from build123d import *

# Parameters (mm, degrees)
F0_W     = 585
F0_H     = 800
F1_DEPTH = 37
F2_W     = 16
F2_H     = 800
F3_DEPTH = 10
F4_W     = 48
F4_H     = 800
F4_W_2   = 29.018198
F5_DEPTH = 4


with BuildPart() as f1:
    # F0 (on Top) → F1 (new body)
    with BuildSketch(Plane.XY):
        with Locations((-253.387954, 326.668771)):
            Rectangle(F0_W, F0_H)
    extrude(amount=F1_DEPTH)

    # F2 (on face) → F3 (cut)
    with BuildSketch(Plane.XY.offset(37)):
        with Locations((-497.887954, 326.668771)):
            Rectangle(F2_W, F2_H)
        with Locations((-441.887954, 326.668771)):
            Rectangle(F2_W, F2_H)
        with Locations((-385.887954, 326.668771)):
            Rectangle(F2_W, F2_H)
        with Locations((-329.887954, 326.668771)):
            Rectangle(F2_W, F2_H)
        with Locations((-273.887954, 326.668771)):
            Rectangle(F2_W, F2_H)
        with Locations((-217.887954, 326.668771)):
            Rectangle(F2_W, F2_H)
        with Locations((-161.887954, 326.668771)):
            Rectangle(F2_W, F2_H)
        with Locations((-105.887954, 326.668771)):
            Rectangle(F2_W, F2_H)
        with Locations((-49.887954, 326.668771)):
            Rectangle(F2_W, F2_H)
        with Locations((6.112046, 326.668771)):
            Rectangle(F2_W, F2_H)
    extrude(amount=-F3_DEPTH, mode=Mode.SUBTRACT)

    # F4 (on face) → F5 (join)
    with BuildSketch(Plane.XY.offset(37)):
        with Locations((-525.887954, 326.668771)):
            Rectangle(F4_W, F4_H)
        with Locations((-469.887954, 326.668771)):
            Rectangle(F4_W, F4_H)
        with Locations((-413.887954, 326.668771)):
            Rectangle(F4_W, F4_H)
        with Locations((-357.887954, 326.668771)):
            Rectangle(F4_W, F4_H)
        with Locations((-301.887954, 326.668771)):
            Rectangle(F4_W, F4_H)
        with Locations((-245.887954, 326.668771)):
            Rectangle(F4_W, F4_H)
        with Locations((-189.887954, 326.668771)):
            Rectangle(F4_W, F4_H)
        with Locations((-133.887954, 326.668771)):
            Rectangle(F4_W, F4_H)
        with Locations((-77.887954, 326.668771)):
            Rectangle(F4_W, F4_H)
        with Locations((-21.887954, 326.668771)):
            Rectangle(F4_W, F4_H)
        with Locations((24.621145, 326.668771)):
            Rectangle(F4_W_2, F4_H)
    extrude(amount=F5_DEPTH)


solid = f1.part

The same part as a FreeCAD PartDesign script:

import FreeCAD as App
import Part
import Sketcher

doc = App.newDocument("Part")
body = doc.addObject("PartDesign::Body", "Body")

# Sketch on XY plane
sketch1 = body.newObject("Sketcher::SketchObject", "Sketch")
sketch1.AttachmentSupport = (doc.getObject("XY_Plane"), [""])
sketch1.MapMode = "FlatFace"
sketch1.addGeometry([
    Part.LineSegment(App.Vector(-546, 727, 0), App.Vector(-546, -73, 0)),
    Part.LineSegment(App.Vector(-546, -73, 0), App.Vector(39, -73, 0)),
    Part.LineSegment(App.Vector(39, -73, 0), App.Vector(39, 727, 0)),
    Part.LineSegment(App.Vector(39, 727, 0), App.Vector(-546, 727, 0)),
], False)
sketch1.addConstraint([
    Sketcher.Constraint("Coincident", 0, 2, 1, 1),
    Sketcher.Constraint("Coincident", 1, 2, 2, 1),
    Sketcher.Constraint("Coincident", 2, 2, 3, 1),
    Sketcher.Constraint("Coincident", 3, 2, 0, 1),
    Sketcher.Constraint("Vertical", 0),
    Sketcher.Constraint("Horizontal", 1),
    Sketcher.Constraint("Vertical", 2),
    Sketcher.Constraint("Horizontal", 3),
    Sketcher.Constraint("DistanceX", 1, 1, 1, 2, 585.0),
    Sketcher.Constraint("DistanceY", 0, 2, 0, 1, 800.0),
    Sketcher.Constraint("DistanceY", 0, 2, -1, 1, 73.331229),
    Sketcher.Constraint("DistanceX", 0, 2, -1, 1, 545.887954),
])
pad1 = body.newObject("PartDesign::Pad", "Pad")
pad1.Profile = sketch1
pad1.Length = 37

# Sketch on XY plane
sketch2 = body.newObject("Sketcher::SketchObject", "Sketch001")
sketch2.AttachmentSupport = (doc.getObject("XY_Plane"), [""])
sketch2.MapMode = "FlatFace"
sketch2.AttachmentOffset = App.Placement(App.Vector(0, 0, 37), App.Rotation())
sketch2.addGeometry([
    Part.LineSegment(App.Vector(-506, 727, 0), App.Vector(-506, -73, 0)),  # 0
    Part.LineSegment(App.Vector(-506, -73, 0), App.Vector(-490, -73, 0)),  # 1
    Part.LineSegment(App.Vector(-490, -73, 0), App.Vector(-490, 727, 0)),  # 2
    Part.LineSegment(App.Vector(-490, 727, 0), App.Vector(-506, 727, 0)),  # 3
    Part.LineSegment(App.Vector(-450, 727, 0), App.Vector(-450, -73, 0)),  # 4
    Part.LineSegment(App.Vector(-450, -73, 0), App.Vector(-434, -73, 0)),  # 5
    Part.LineSegment(App.Vector(-434, -73, 0), App.Vector(-434, 727, 0)),  # 6
    Part.LineSegment(App.Vector(-434, 727, 0), App.Vector(-450, 727, 0)),  # 7
    Part.LineSegment(App.Vector(-394, 727, 0), App.Vector(-394, -73, 0)),  # 8
    Part.LineSegment(App.Vector(-394, -73, 0), App.Vector(-378, -73, 0)),  # 9
    Part.LineSegment(App.Vector(-378, -73, 0), App.Vector(-378, 727, 0)),  # 10
    Part.LineSegment(App.Vector(-378, 727, 0), App.Vector(-394, 727, 0)),  # 11
    Part.LineSegment(App.Vector(-338, 727, 0), App.Vector(-338, -73, 0)),  # 12
    Part.LineSegment(App.Vector(-338, -73, 0), App.Vector(-322, -73, 0)),  # 13
    Part.LineSegment(App.Vector(-322, -73, 0), App.Vector(-322, 727, 0)),  # 14
    Part.LineSegment(App.Vector(-322, 727, 0), App.Vector(-338, 727, 0)),  # 15
    Part.LineSegment(App.Vector(-282, 727, 0), App.Vector(-282, -73, 0)),  # 16
    Part.LineSegment(App.Vector(-282, -73, 0), App.Vector(-266, -73, 0)),  # 17
    Part.LineSegment(App.Vector(-266, -73, 0), App.Vector(-266, 727, 0)),  # 18
    Part.LineSegment(App.Vector(-266, 727, 0), App.Vector(-282, 727, 0)),  # 19
    Part.LineSegment(App.Vector(-226, 727, 0), App.Vector(-226, -73, 0)),  # 20
    Part.LineSegment(App.Vector(-226, -73, 0), App.Vector(-210, -73, 0)),  # 21
    Part.LineSegment(App.Vector(-210, -73, 0), App.Vector(-210, 727, 0)),  # 22
    Part.LineSegment(App.Vector(-210, 727, 0), App.Vector(-226, 727, 0)),  # 23
    Part.LineSegment(App.Vector(-170, 727, 0), App.Vector(-170, -73, 0)),  # 24
    Part.LineSegment(App.Vector(-170, -73, 0), App.Vector(-154, -73, 0)),  # 25
    Part.LineSegment(App.Vector(-154, -73, 0), App.Vector(-154, 727, 0)),  # 26
    Part.LineSegment(App.Vector(-154, 727, 0), App.Vector(-170, 727, 0)),  # 27
    Part.LineSegment(App.Vector(-114, 727, 0), App.Vector(-114, -73, 0)),  # 28
    Part.LineSegment(App.Vector(-114, -73, 0), App.Vector(-98, -73, 0)),  # 29
    Part.LineSegment(App.Vector(-98, -73, 0), App.Vector(-98, 727, 0)),  # 30
    Part.LineSegment(App.Vector(-98, 727, 0), App.Vector(-114, 727, 0)),  # 31
    Part.LineSegment(App.Vector(-58, 727, 0), App.Vector(-58, -73, 0)),  # 32
    Part.LineSegment(App.Vector(-58, -73, 0), App.Vector(-42, -73, 0)),  # 33
    Part.LineSegment(App.Vector(-42, -73, 0), App.Vector(-42, 727, 0)),  # 34
    Part.LineSegment(App.Vector(-42, 727, 0), App.Vector(-58, 727, 0)),  # 35
    Part.LineSegment(App.Vector(-2, 727, 0), App.Vector(-2, -73, 0)),  # 36
    Part.LineSegment(App.Vector(-2, -73, 0), App.Vector(14, -73, 0)),  # 37
    Part.LineSegment(App.Vector(14, -73, 0), App.Vector(14, 727, 0)),  # 38
    Part.LineSegment(App.Vector(14, 727, 0), App.Vector(-2, 727, 0)),  # 39
], False)
sketch2.addConstraint([
    Sketcher.Constraint("Coincident", 0, 2, 1, 1),
    Sketcher.Constraint("Coincident", 1, 2, 2, 1),
    Sketcher.Constraint("Coincident", 2, 2, 3, 1),
    Sketcher.Constraint("Coincident", 3, 2, 0, 1),
    Sketcher.Constraint("Coincident", 4, 2, 5, 1),
    Sketcher.Constraint("Coincident", 5, 2, 6, 1),
    Sketcher.Constraint("Coincident", 6, 2, 7, 1),
    Sketcher.Constraint("Coincident", 7, 2, 4, 1),
    Sketcher.Constraint("Coincident", 8, 2, 9, 1),
    Sketcher.Constraint("Coincident", 9, 2, 10, 1),
    Sketcher.Constraint("Coincident", 10, 2, 11, 1),
    Sketcher.Constraint("Coincident", 11, 2, 8, 1),
    Sketcher.Constraint("Coincident", 12, 2, 13, 1),
    Sketcher.Constraint("Coincident", 13, 2, 14, 1),
    Sketcher.Constraint("Coincident", 14, 2, 15, 1),
    Sketcher.Constraint("Coincident", 15, 2, 12, 1),
    Sketcher.Constraint("Coincident", 16, 2, 17, 1),
    Sketcher.Constraint("Coincident", 17, 2, 18, 1),
    Sketcher.Constraint("Coincident", 18, 2, 19, 1),
    Sketcher.Constraint("Coincident", 19, 2, 16, 1),
    Sketcher.Constraint("Coincident", 20, 2, 21, 1),
    Sketcher.Constraint("Coincident", 21, 2, 22, 1),
    Sketcher.Constraint("Coincident", 22, 2, 23, 1),
    Sketcher.Constraint("Coincident", 23, 2, 20, 1),
    Sketcher.Constraint("Coincident", 24, 2, 25, 1),
    Sketcher.Constraint("Coincident", 25, 2, 26, 1),
    Sketcher.Constraint("Coincident", 26, 2, 27, 1),
    Sketcher.Constraint("Coincident", 27, 2, 24, 1),
    Sketcher.Constraint("Coincident", 28, 2, 29, 1),
    Sketcher.Constraint("Coincident", 29, 2, 30, 1),
    Sketcher.Constraint("Coincident", 30, 2, 31, 1),
    Sketcher.Constraint("Coincident", 31, 2, 28, 1),
    Sketcher.Constraint("Coincident", 32, 2, 33, 1),
    Sketcher.Constraint("Coincident", 33, 2, 34, 1),
    Sketcher.Constraint("Coincident", 34, 2, 35, 1),
    Sketcher.Constraint("Coincident", 35, 2, 32, 1),
    Sketcher.Constraint("Coincident", 36, 2, 37, 1),
    Sketcher.Constraint("Coincident", 37, 2, 38, 1),
    Sketcher.Constraint("Coincident", 38, 2, 39, 1),
    Sketcher.Constraint("Coincident", 39, 2, 36, 1),
    Sketcher.Constraint("Vertical", 0),
    Sketcher.Constraint("Horizontal", 1),
    Sketcher.Constraint("Vertical", 2),
    Sketcher.Constraint("Horizontal", 3),
    Sketcher.Constraint("Vertical", 4),
    Sketcher.Constraint("Horizontal", 5),
    Sketcher.Constraint("Vertical", 6),
    Sketcher.Constraint("Horizontal", 7),
    Sketcher.Constraint("Vertical", 8),
    Sketcher.Constraint("Horizontal", 9),
    Sketcher.Constraint("Vertical", 10),
    Sketcher.Constraint("Horizontal", 11),
    Sketcher.Constraint("Vertical", 12),
    Sketcher.Constraint("Horizontal", 13),
    Sketcher.Constraint("Vertical", 14),
    Sketcher.Constraint("Horizontal", 15),
    Sketcher.Constraint("Vertical", 16),
    Sketcher.Constraint("Horizontal", 17),
    Sketcher.Constraint("Vertical", 18),
    Sketcher.Constraint("Horizontal", 19),
    Sketcher.Constraint("Vertical", 20),
    Sketcher.Constraint("Horizontal", 21),
    Sketcher.Constraint("Vertical", 22),
    Sketcher.Constraint("Horizontal", 23),
    Sketcher.Constraint("Vertical", 24),
    Sketcher.Constraint("Horizontal", 25),
    Sketcher.Constraint("Vertical", 26),
    Sketcher.Constraint("Horizontal", 27),
    Sketcher.Constraint("Vertical", 28),
    Sketcher.Constraint("Horizontal", 29),
    Sketcher.Constraint("Vertical", 30),
    Sketcher.Constraint("Horizontal", 31),
    Sketcher.Constraint("Vertical", 32),
    Sketcher.Constraint("Horizontal", 33),
    Sketcher.Constraint("Vertical", 34),
    Sketcher.Constraint("Horizontal", 35),
    Sketcher.Constraint("Vertical", 36),
    Sketcher.Constraint("Horizontal", 37),
    Sketcher.Constraint("Vertical", 38),
    Sketcher.Constraint("Horizontal", 39),
    Sketcher.Constraint("Horizontal", 1, 2, 4, 2),
    Sketcher.Constraint("Horizontal", 3, 2, 6, 2),
    Sketcher.Constraint("Horizontal", 5, 2, 8, 2),
    Sketcher.Constraint("Horizontal", 7, 2, 10, 2),
    Sketcher.Constraint("Horizontal", 9, 2, 12, 2),
    Sketcher.Constraint("Horizontal", 11, 2, 14, 2),
    Sketcher.Constraint("Horizontal", 13, 2, 16, 2),
    Sketcher.Constraint("Horizontal", 15, 2, 18, 2),
    Sketcher.Constraint("Horizontal", 17, 2, 20, 2),
    Sketcher.Constraint("Horizontal", 19, 2, 22, 2),
    Sketcher.Constraint("Horizontal", 21, 2, 24, 2),
    Sketcher.Constraint("Horizontal", 23, 2, 26, 2),
    Sketcher.Constraint("Horizontal", 25, 2, 28, 2),
    Sketcher.Constraint("Horizontal", 27, 2, 30, 2),
    Sketcher.Constraint("Horizontal", 29, 2, 32, 2),
    Sketcher.Constraint("Horizontal", 31, 2, 34, 2),
    Sketcher.Constraint("Horizontal", 33, 2, 36, 2),
    Sketcher.Constraint("Horizontal", 35, 2, 38, 2),
    Sketcher.Constraint("Equal", 3, 5),
    Sketcher.Constraint("Equal", 7, 9),
    Sketcher.Constraint("Equal", 11, 13),
    Sketcher.Constraint("Equal", 15, 17),
    Sketcher.Constraint("Equal", 19, 21),
    Sketcher.Constraint("Equal", 23, 25),
    Sketcher.Constraint("Equal", 27, 29),
    Sketcher.Constraint("Equal", 31, 33),
    Sketcher.Constraint("Equal", 35, 37),
    Sketcher.Constraint("DistanceX", 1, 1, 1, 2, 16.0),
    Sketcher.Constraint("DistanceY", 0, 2, 0, 1, 800.0),
    Sketcher.Constraint("DistanceX", 1, 2, 4, 2, 40.0),
    Sketcher.Constraint("DistanceX", 5, 2, 8, 2, 40.0),
    Sketcher.Constraint("DistanceX", 9, 2, 12, 2, 40.0),
    Sketcher.Constraint("DistanceX", 13, 2, 16, 2, 40.0),
    Sketcher.Constraint("DistanceX", 17, 2, 20, 2, 40.0),
    Sketcher.Constraint("DistanceX", 21, 2, 24, 2, 40.0),
    Sketcher.Constraint("DistanceX", 25, 2, 28, 2, 40.0),
    Sketcher.Constraint("DistanceX", 29, 2, 32, 2, 40.0),
    Sketcher.Constraint("DistanceX", 33, 2, 36, 2, 40.0),
    Sketcher.Constraint("DistanceY", 0, 2, -1, 1, 73.331229),
    Sketcher.Constraint("DistanceX", 0, 2, -1, 1, 505.887954),
])
pocket1 = body.newObject("PartDesign::Pocket", "Pocket")
pocket1.Profile = sketch2
pocket1.Length = 10

# Sketch on XY plane
sketch3 = body.newObject("Sketcher::SketchObject", "Sketch002")
sketch3.AttachmentSupport = (doc.getObject("XY_Plane"), [""])
sketch3.MapMode = "FlatFace"
sketch3.AttachmentOffset = App.Placement(App.Vector(0, 0, 37), App.Rotation())
sketch3.addGeometry([
    Part.LineSegment(App.Vector(-550, 727, 0), App.Vector(-550, -73, 0)),  # 0
    Part.LineSegment(App.Vector(-550, -73, 0), App.Vector(-502, -73, 0)),  # 1
    Part.LineSegment(App.Vector(-502, -73, 0), App.Vector(-502, 727, 0)),  # 2
    Part.LineSegment(App.Vector(-502, 727, 0), App.Vector(-550, 727, 0)),  # 3
    Part.LineSegment(App.Vector(-494, 727, 0), App.Vector(-494, -73, 0)),  # 4
    Part.LineSegment(App.Vector(-494, -73, 0), App.Vector(-446, -73, 0)),  # 5
    Part.LineSegment(App.Vector(-446, -73, 0), App.Vector(-446, 727, 0)),  # 6
    Part.LineSegment(App.Vector(-446, 727, 0), App.Vector(-494, 727, 0)),  # 7
    Part.LineSegment(App.Vector(-438, 727, 0), App.Vector(-438, -73, 0)),  # 8
    Part.LineSegment(App.Vector(-438, -73, 0), App.Vector(-390, -73, 0)),  # 9
    Part.LineSegment(App.Vector(-390, -73, 0), App.Vector(-390, 727, 0)),  # 10
    Part.LineSegment(App.Vector(-390, 727, 0), App.Vector(-438, 727, 0)),  # 11
    Part.LineSegment(App.Vector(-382, 727, 0), App.Vector(-382, -73, 0)),  # 12
    Part.LineSegment(App.Vector(-382, -73, 0), App.Vector(-334, -73, 0)),  # 13
    Part.LineSegment(App.Vector(-334, -73, 0), App.Vector(-334, 727, 0)),  # 14
    Part.LineSegment(App.Vector(-334, 727, 0), App.Vector(-382, 727, 0)),  # 15
    Part.LineSegment(App.Vector(-326, 727, 0), App.Vector(-326, -73, 0)),  # 16
    Part.LineSegment(App.Vector(-326, -73, 0), App.Vector(-278, -73, 0)),  # 17
    Part.LineSegment(App.Vector(-278, -73, 0), App.Vector(-278, 727, 0)),  # 18
    Part.LineSegment(App.Vector(-278, 727, 0), App.Vector(-326, 727, 0)),  # 19
    Part.LineSegment(App.Vector(-270, 727, 0), App.Vector(-270, -73, 0)),  # 20
    Part.LineSegment(App.Vector(-270, -73, 0), App.Vector(-222, -73, 0)),  # 21
    Part.LineSegment(App.Vector(-222, -73, 0), App.Vector(-222, 727, 0)),  # 22
    Part.LineSegment(App.Vector(-222, 727, 0), App.Vector(-270, 727, 0)),  # 23
    Part.LineSegment(App.Vector(-214, 727, 0), App.Vector(-214, -73, 0)),  # 24
    Part.LineSegment(App.Vector(-214, -73, 0), App.Vector(-166, -73, 0)),  # 25
    Part.LineSegment(App.Vector(-166, -73, 0), App.Vector(-166, 727, 0)),  # 26
    Part.LineSegment(App.Vector(-166, 727, 0), App.Vector(-214, 727, 0)),  # 27
    Part.LineSegment(App.Vector(-158, 727, 0), App.Vector(-158, -73, 0)),  # 28
    Part.LineSegment(App.Vector(-158, -73, 0), App.Vector(-110, -73, 0)),  # 29
    Part.LineSegment(App.Vector(-110, -73, 0), App.Vector(-110, 727, 0)),  # 30
    Part.LineSegment(App.Vector(-110, 727, 0), App.Vector(-158, 727, 0)),  # 31
    Part.LineSegment(App.Vector(-102, 727, 0), App.Vector(-102, -73, 0)),  # 32
    Part.LineSegment(App.Vector(-102, -73, 0), App.Vector(-54, -73, 0)),  # 33
    Part.LineSegment(App.Vector(-54, -73, 0), App.Vector(-54, 727, 0)),  # 34
    Part.LineSegment(App.Vector(-54, 727, 0), App.Vector(-102, 727, 0)),  # 35
    Part.LineSegment(App.Vector(-46, 727, 0), App.Vector(-46, -73, 0)),  # 36
    Part.LineSegment(App.Vector(-46, -73, 0), App.Vector(2, -73, 0)),  # 37
    Part.LineSegment(App.Vector(2, -73, 0), App.Vector(2, 727, 0)),  # 38
    Part.LineSegment(App.Vector(2, 727, 0), App.Vector(-46, 727, 0)),  # 39
    Part.LineSegment(App.Vector(10, 727, 0), App.Vector(10, -73, 0)),  # 40
    Part.LineSegment(App.Vector(10, -73, 0), App.Vector(39, -73, 0)),  # 41
    Part.LineSegment(App.Vector(39, -73, 0), App.Vector(39, 727, 0)),  # 42
    Part.LineSegment(App.Vector(39, 727, 0), App.Vector(10, 727, 0)),  # 43
], False)
sketch3.addConstraint([
    Sketcher.Constraint("Coincident", 0, 2, 1, 1),
    Sketcher.Constraint("Coincident", 1, 2, 2, 1),
    Sketcher.Constraint("Coincident", 2, 2, 3, 1),
    Sketcher.Constraint("Coincident", 3, 2, 0, 1),
    Sketcher.Constraint("Coincident", 4, 2, 5, 1),
    Sketcher.Constraint("Coincident", 5, 2, 6, 1),
    Sketcher.Constraint("Coincident", 6, 2, 7, 1),
    Sketcher.Constraint("Coincident", 7, 2, 4, 1),
    Sketcher.Constraint("Coincident", 8, 2, 9, 1),
    Sketcher.Constraint("Coincident", 9, 2, 10, 1),
    Sketcher.Constraint("Coincident", 10, 2, 11, 1),
    Sketcher.Constraint("Coincident", 11, 2, 8, 1),
    Sketcher.Constraint("Coincident", 12, 2, 13, 1),
    Sketcher.Constraint("Coincident", 13, 2, 14, 1),
    Sketcher.Constraint("Coincident", 14, 2, 15, 1),
    Sketcher.Constraint("Coincident", 15, 2, 12, 1),
    Sketcher.Constraint("Coincident", 16, 2, 17, 1),
    Sketcher.Constraint("Coincident", 17, 2, 18, 1),
    Sketcher.Constraint("Coincident", 18, 2, 19, 1),
    Sketcher.Constraint("Coincident", 19, 2, 16, 1),
    Sketcher.Constraint("Coincident", 20, 2, 21, 1),
    Sketcher.Constraint("Coincident", 21, 2, 22, 1),
    Sketcher.Constraint("Coincident", 22, 2, 23, 1),
    Sketcher.Constraint("Coincident", 23, 2, 20, 1),
    Sketcher.Constraint("Coincident", 24, 2, 25, 1),
    Sketcher.Constraint("Coincident", 25, 2, 26, 1),
    Sketcher.Constraint("Coincident", 26, 2, 27, 1),
    Sketcher.Constraint("Coincident", 27, 2, 24, 1),
    Sketcher.Constraint("Coincident", 28, 2, 29, 1),
    Sketcher.Constraint("Coincident", 29, 2, 30, 1),
    Sketcher.Constraint("Coincident", 30, 2, 31, 1),
    Sketcher.Constraint("Coincident", 31, 2, 28, 1),
    Sketcher.Constraint("Coincident", 32, 2, 33, 1),
    Sketcher.Constraint("Coincident", 33, 2, 34, 1),
    Sketcher.Constraint("Coincident", 34, 2, 35, 1),
    Sketcher.Constraint("Coincident", 35, 2, 32, 1),
    Sketcher.Constraint("Coincident", 36, 2, 37, 1),
    Sketcher.Constraint("Coincident", 37, 2, 38, 1),
    Sketcher.Constraint("Coincident", 38, 2, 39, 1),
    Sketcher.Constraint("Coincident", 39, 2, 36, 1),
    Sketcher.Constraint("Coincident", 40, 2, 41, 1),
    Sketcher.Constraint("Coincident", 41, 2, 42, 1),
    Sketcher.Constraint("Coincident", 42, 2, 43, 1),
    Sketcher.Constraint("Coincident", 43, 2, 40, 1),
    Sketcher.Constraint("Vertical", 0),
    Sketcher.Constraint("Horizontal", 1),
    Sketcher.Constraint("Vertical", 2),
    Sketcher.Constraint("Horizontal", 3),
    Sketcher.Constraint("Vertical", 4),
    Sketcher.Constraint("Horizontal", 5),
    Sketcher.Constraint("Vertical", 6),
    Sketcher.Constraint("Horizontal", 7),
    Sketcher.Constraint("Vertical", 8),
    Sketcher.Constraint("Horizontal", 9),
    Sketcher.Constraint("Vertical", 10),
    Sketcher.Constraint("Horizontal", 11),
    Sketcher.Constraint("Vertical", 12),
    Sketcher.Constraint("Horizontal", 13),
    Sketcher.Constraint("Vertical", 14),
    Sketcher.Constraint("Horizontal", 15),
    Sketcher.Constraint("Vertical", 16),
    Sketcher.Constraint("Horizontal", 17),
    Sketcher.Constraint("Vertical", 18),
    Sketcher.Constraint("Horizontal", 19),
    Sketcher.Constraint("Vertical", 20),
    Sketcher.Constraint("Horizontal", 21),
    Sketcher.Constraint("Vertical", 22),
    Sketcher.Constraint("Horizontal", 23),
    Sketcher.Constraint("Vertical", 24),
    Sketcher.Constraint("Horizontal", 25),
    Sketcher.Constraint("Vertical", 26),
    Sketcher.Constraint("Horizontal", 27),
    Sketcher.Constraint("Vertical", 28),
    Sketcher.Constraint("Horizontal", 29),
    Sketcher.Constraint("Vertical", 30),
    Sketcher.Constraint("Horizontal", 31),
    Sketcher.Constraint("Vertical", 32),
    Sketcher.Constraint("Horizontal", 33),
    Sketcher.Constraint("Vertical", 34),
    Sketcher.Constraint("Horizontal", 35),
    Sketcher.Constraint("Vertical", 36),
    Sketcher.Constraint("Horizontal", 37),
    Sketcher.Constraint("Vertical", 38),
    Sketcher.Constraint("Horizontal", 39),
    Sketcher.Constraint("Vertical", 40),
    Sketcher.Constraint("Horizontal", 41),
    Sketcher.Constraint("Vertical", 42),
    Sketcher.Constraint("Horizontal", 43),
    Sketcher.Constraint("Horizontal", 1, 2, 4, 2),
    Sketcher.Constraint("Horizontal", 3, 2, 6, 2),
    Sketcher.Constraint("Horizontal", 5, 2, 8, 2),
    Sketcher.Constraint("Horizontal", 7, 2, 10, 2),
    Sketcher.Constraint("Horizontal", 9, 2, 12, 2),
    Sketcher.Constraint("Horizontal", 11, 2, 14, 2),
    Sketcher.Constraint("Horizontal", 13, 2, 16, 2),
    Sketcher.Constraint("Horizontal", 15, 2, 18, 2),
    Sketcher.Constraint("Horizontal", 17, 2, 20, 2),
    Sketcher.Constraint("Horizontal", 19, 2, 22, 2),
    Sketcher.Constraint("Horizontal", 21, 2, 24, 2),
    Sketcher.Constraint("Horizontal", 23, 2, 26, 2),
    Sketcher.Constraint("Horizontal", 25, 2, 28, 2),
    Sketcher.Constraint("Horizontal", 27, 2, 30, 2),
    Sketcher.Constraint("Horizontal", 29, 2, 32, 2),
    Sketcher.Constraint("Horizontal", 31, 2, 34, 2),
    Sketcher.Constraint("Horizontal", 33, 2, 36, 2),
    Sketcher.Constraint("Horizontal", 35, 2, 38, 2),
    Sketcher.Constraint("Horizontal", 37, 2, 40, 2),
    Sketcher.Constraint("Horizontal", 39, 2, 42, 2),
    Sketcher.Constraint("Equal", 3, 5),
    Sketcher.Constraint("Equal", 7, 9),
    Sketcher.Constraint("Equal", 11, 13),
    Sketcher.Constraint("Equal", 15, 17),
    Sketcher.Constraint("Equal", 19, 21),
    Sketcher.Constraint("Equal", 23, 25),
    Sketcher.Constraint("Equal", 27, 29),
    Sketcher.Constraint("Equal", 31, 33),
    Sketcher.Constraint("Equal", 35, 37),
    Sketcher.Constraint("DistanceX", 1, 1, 1, 2, 48.0),
    Sketcher.Constraint("DistanceY", 0, 2, 0, 1, 800.0),
    Sketcher.Constraint("DistanceX", 1, 2, 4, 2, 8.0),
    Sketcher.Constraint("DistanceX", 5, 2, 8, 2, 8.0),
    Sketcher.Constraint("DistanceX", 9, 2, 12, 2, 8.0),
    Sketcher.Constraint("DistanceX", 13, 2, 16, 2, 8.0),
    Sketcher.Constraint("DistanceX", 17, 2, 20, 2, 8.0),
    Sketcher.Constraint("DistanceX", 21, 2, 24, 2, 8.0),
    Sketcher.Constraint("DistanceX", 25, 2, 28, 2, 8.0),
    Sketcher.Constraint("DistanceX", 29, 2, 32, 2, 8.0),
    Sketcher.Constraint("DistanceX", 33, 2, 36, 2, 8.0),
    Sketcher.Constraint("DistanceX", 37, 2, 40, 2, 8.0),
    Sketcher.Constraint("DistanceX", 36, 2, 41, 2, 85.018198),
    Sketcher.Constraint("DistanceY", 0, 2, -1, 1, 73.331229),
    Sketcher.Constraint("DistanceX", 0, 2, -1, 1, 549.887954),
])
pad2 = body.newObject("PartDesign::Pad", "Pad001")
pad2.Profile = sketch3
pad2.Length = 4

doc.recompute()
